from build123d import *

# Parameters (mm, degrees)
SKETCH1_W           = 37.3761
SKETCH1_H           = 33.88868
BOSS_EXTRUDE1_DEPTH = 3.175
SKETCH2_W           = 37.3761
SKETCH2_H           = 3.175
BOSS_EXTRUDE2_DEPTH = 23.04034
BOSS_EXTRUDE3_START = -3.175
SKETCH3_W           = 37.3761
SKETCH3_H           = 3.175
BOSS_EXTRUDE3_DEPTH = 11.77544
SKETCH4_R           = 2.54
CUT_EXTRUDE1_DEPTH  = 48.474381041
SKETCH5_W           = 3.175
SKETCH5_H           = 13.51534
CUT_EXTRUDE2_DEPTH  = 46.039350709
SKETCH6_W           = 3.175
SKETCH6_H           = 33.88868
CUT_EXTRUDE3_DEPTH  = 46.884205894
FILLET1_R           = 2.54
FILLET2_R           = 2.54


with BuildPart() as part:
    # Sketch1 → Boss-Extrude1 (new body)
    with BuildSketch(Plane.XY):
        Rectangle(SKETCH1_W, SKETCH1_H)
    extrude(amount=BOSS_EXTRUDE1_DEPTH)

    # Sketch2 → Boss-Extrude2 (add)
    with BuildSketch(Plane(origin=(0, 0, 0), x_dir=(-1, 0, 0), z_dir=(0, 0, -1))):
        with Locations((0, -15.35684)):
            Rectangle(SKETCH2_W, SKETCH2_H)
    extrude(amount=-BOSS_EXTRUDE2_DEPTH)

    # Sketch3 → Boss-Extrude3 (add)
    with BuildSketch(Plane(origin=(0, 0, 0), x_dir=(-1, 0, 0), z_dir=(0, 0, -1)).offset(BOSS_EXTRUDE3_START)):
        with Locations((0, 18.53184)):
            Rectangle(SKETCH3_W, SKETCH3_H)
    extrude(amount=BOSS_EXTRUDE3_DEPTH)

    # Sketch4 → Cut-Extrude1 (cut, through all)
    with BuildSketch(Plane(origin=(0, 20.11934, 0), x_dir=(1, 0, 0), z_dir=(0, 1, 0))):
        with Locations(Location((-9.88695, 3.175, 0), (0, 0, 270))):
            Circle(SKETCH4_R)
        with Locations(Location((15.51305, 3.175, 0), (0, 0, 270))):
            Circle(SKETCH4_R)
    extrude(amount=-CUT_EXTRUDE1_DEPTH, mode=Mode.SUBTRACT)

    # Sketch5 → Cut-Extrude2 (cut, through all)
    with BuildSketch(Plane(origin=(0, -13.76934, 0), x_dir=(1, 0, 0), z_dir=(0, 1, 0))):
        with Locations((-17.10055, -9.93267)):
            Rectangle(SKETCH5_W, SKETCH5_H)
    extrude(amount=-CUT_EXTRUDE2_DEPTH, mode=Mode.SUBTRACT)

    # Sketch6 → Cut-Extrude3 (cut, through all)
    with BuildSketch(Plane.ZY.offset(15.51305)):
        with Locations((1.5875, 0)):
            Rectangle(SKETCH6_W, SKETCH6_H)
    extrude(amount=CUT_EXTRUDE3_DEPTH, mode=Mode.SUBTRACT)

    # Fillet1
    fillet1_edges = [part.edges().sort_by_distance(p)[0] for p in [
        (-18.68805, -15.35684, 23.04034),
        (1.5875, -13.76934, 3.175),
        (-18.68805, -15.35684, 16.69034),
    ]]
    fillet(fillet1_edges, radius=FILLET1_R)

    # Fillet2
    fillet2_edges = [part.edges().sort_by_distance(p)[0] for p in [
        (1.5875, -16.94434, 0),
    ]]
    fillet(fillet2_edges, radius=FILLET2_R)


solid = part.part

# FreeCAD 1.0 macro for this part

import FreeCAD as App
import Part
import Sketcher
Q = App.Units.Quantity


def edges_at(feature, points):
    """Names of the edges that pass closest to the given points."""
    edges = feature.Shape.Edges
    near = lambda p: min(range(len(edges)), key=lambda i: edges[i].distToShape(Part.Vertex(*p))[0])
    return sorted({f"Edge{near(p) + 1}" for p in points})

doc = App.newDocument("Part")
params = doc.addObject("Spreadsheet::Sheet", "Params")
for row, (alias, value) in enumerate([
    ("pad1_length", "0.125 in"),
    ("sketch2_height", "0.125 in"),
    ("pad2_length", "0.9071 in"),
    ("sketch3_height", "0.125 in"),
    ("pad3_length", "0.4636 in"),
    ("sketch4_diameter", "0.2 in"),
    ("sketch5_width", "0.125 in"),
    ("sketch6_height", "0.125 in"),
    ("fillet_radius", "0.1 in"),
    ("fillet2_radius", "0.1 in"),
], start=1):
    params.set(f"A{row}", alias)
    params.set(f"B{row}", "=" + value)
    params.setAlias(f"B{row}", alias)

body = doc.addObject("PartDesign::Body", "Body")

# Sketch on XY plane
sketch1 = doc.addObject("Sketcher::SketchObject", "Sketch")
body.addObject(sketch1)
sketch1.AttachmentSupport = (doc.XY_Plane, [""])
sketch1.MapMode = "FlatFace"
sketch1.addGeometry([
    Part.LineSegment(App.Vector(-19, 17, 0), App.Vector(-19, -17, 0)),
    Part.LineSegment(App.Vector(-19, -17, 0), App.Vector(19, -17, 0)),
    Part.LineSegment(App.Vector(19, -17, 0), App.Vector(19, 17, 0)),
    Part.LineSegment(App.Vector(19, 17, 0), App.Vector(-19, 17, 0)),
], False)
sketch1.addConstraint([
    Sketcher.Constraint("Coincident", 0, 2, 1, 1),
    Sketcher.Constraint("Coincident", 1, 2, 2, 1),
    Sketcher.Constraint("Coincident", 2, 2, 3, 1),
    Sketcher.Constraint("Coincident", 3, 2, 0, 1),
    Sketcher.Constraint("Vertical", 0),
    Sketcher.Constraint("Horizontal", 1),
    Sketcher.Constraint("Vertical", 2),
    Sketcher.Constraint("Horizontal", 3),
    Sketcher.Constraint("Symmetric", 0, 2, 2, 2, -1, 1),
    Sketcher.Constraint("DistanceX", 1, 1, 1, 2, Q("1.4715 in")),
    Sketcher.Constraint("DistanceY", 0, 2, 0, 1, Q("1.3342 in")),
])
pad1 = doc.addObject("PartDesign::Pad", "Pad")
body.addObject(pad1)
pad1.Profile = sketch1
pad1.setExpression("Length", "Params.pad1_length")

# Sketch on XY plane
sketch2 = doc.addObject("Sketcher::SketchObject", "Sketch001")
body.addObject(sketch2)
sketch2.AttachmentSupport = (doc.XY_Plane, [""])
sketch2.MapMode = "FlatFace"
sketch2.addGeometry([
    Part.LineSegment(App.Vector(18.7, -13.8, 0), App.Vector(18.7, -16.9, 0)),
    Part.LineSegment(App.Vector(18.7, -16.9, 0), App.Vector(-18.7, -16.9, 0)),
    Part.LineSegment(App.Vector(-18.7, -16.9, 0), App.Vector(-18.7, -13.8, 0)),
    Part.LineSegment(App.Vector(-18.7, -13.8, 0), App.Vector(18.7, -13.8, 0)),
], False)
sketch2.addConstraint([
    Sketcher.Constraint("Coincident", 0, 2, 1, 1),
    Sketcher.Constraint("Coincident", 1, 2, 2, 1),
    Sketcher.Constraint("Coincident", 2, 2, 3, 1),
    Sketcher.Constraint("Coincident", 3, 2, 0, 1),
    Sketcher.Constraint("Vertical", 0),
    Sketcher.Constraint("Horizontal", 1),
    Sketcher.Constraint("Vertical", 2),
    Sketcher.Constraint("Horizontal", 3),
    Sketcher.Constraint("DistanceY", 0, 2, 0, 1, Q("0.125 in")),
    Sketcher.Constraint("DistanceX", 1, 2, 1, 1, Q("1.4715 in")),
    Sketcher.Constraint("DistanceY", 0, 2, -1, 1, Q("0.6671 in")),
    Sketcher.Constraint("DistanceX", -1, 1, 0, 2, Q("18.68805 mm")),
])
sketch2.setExpression("Constraints[8]", "Params.sketch2_height")
pad2 = doc.addObject("PartDesign::Pad", "Pad001")
body.addObject(pad2)
pad2.Profile = sketch2
pad2.setExpression("Length", "Params.pad2_length")

# Sketch on XY plane
sketch3 = doc.addObject("Sketcher::SketchObject", "Sketch002")
body.addObject(sketch3)
sketch3.AttachmentSupport = (doc.XY_Plane, [""])
sketch3.MapMode = "FlatFace"
sketch3.AttachmentOffset = App.Placement(App.Vector(0, 0, 0.125 * 25.4), App.Rotation())
sketch3.addGeometry([
    Part.LineSegment(App.Vector(18.7, 20.1, 0), App.Vector(18.7, 16.9, 0)),
    Part.LineSegment(App.Vector(18.7, 16.9, 0), App.Vector(-18.7, 16.9, 0)),
    Part.LineSegment(App.Vector(-18.7, 16.9, 0), App.Vector(-18.7, 20.1, 0)),
    Part.LineSegment(App.Vector(-18.7, 20.1, 0), App.Vector(18.7, 20.1, 0)),
], False)
sketch3.addConstraint([
    Sketcher.Constraint("Coincident", 0, 2, 1, 1),
    Sketcher.Constraint("Coincident", 1, 2, 2, 1),
    Sketcher.Constraint("Coincident", 2, 2, 3, 1),
    Sketcher.Constraint("Coincident", 3, 2, 0, 1),
    Sketcher.Constraint("Vertical", 0),
    Sketcher.Constraint("Horizontal", 1),
    Sketcher.Constraint("Vertical", 2),
    Sketcher.Constraint("Horizontal", 3),
    Sketcher.Constraint("DistanceY", 0, 2, 0, 1, Q("0.125 in")),
    Sketcher.Constraint("DistanceX", 1, 2, 1, 1, Q("1.4715 in")),
    Sketcher.Constraint("DistanceY", -1, 1, 0, 2, Q("0.6671 in")),
    Sketcher.Constraint("DistanceX", -1, 1, 0, 2, Q("18.68805 mm")),
])
sketch3.setExpression("Constraints[8]", "Params.sketch3_height")
pad3 = doc.addObject("PartDesign::Pad", "Pad002")
body.addObject(pad3)
pad3.Profile = sketch3
pad3.setExpression("Length", "Params.pad3_length")
pad3.Reversed = True

# Sketch on XZ plane
sketch4 = doc.addObject("Sketcher::SketchObject", "Sketch003")
body.addObject(sketch4)
sketch4.AttachmentSupport = (doc.XZ_Plane, [""])
sketch4.MapMode = "FlatFace"
sketch4.AttachmentOffset = App.Placement(App.Vector(0, 0, -0.7921 * 25.4), App.Rotation())
sketch4.addGeometry([
    Part.Circle(App.Vector(-9.9, -3.2, 0), App.Vector(0, 0, 1), 2.5),
    Part.Circle(App.Vector(15.5, -3.2, 0), App.Vector(0, 0, 1), 2.5),
], False)
sketch4.addConstraint([
    Sketcher.Constraint("Equal", 0, 1),
    Sketcher.Constraint("Horizontal", 0, 3, 1, 3),
    Sketcher.Constraint("Diameter", 0, Q("0.2 in")),
    Sketcher.Constraint("DistanceX", 0, 3, 1, 3, Q("1 in")),
    Sketcher.Constraint("DistanceY", 0, 3, -1, 1, Q("0.125 in")),
    Sketcher.Constraint("DistanceX", 0, 3, -1, 1, Q("9.88695 mm")),
])
sketch4.setExpression("Constraints[2]", "Params.sketch4_diameter")
pocket1 = doc.addObject("PartDesign::Pocket", "Pocket")
body.addObject(pocket1)
pocket1.Profile = sketch4
pocket1.Type = "ThroughAll"
pocket1.Reversed = True

# Sketch on XZ plane
sketch5 = doc.addObject("Sketcher::SketchObject", "Sketch004")
body.addObject(sketch5)
sketch5.AttachmentSupport = (doc.XZ_Plane, [""])
sketch5.MapMode = "FlatFace"
sketch5.AttachmentOffset = App.Placement(App.Vector(0, 0, 0.5421 * 25.4), App.Rotation())
sketch5.addGeometry([
    Part.LineSegment(App.Vector(-18.7, 3.2, 0), App.Vector(-18.7, 16.7, 0)),
    Part.LineSegment(App.Vector(-18.7, 16.7, 0), App.Vector(-15.5, 16.7, 0)),
    Part.LineSegment(App.Vector(-15.5, 16.7, 0), App.Vector(-15.5, 3.2, 0)),
    Part.LineSegment(App.Vector(-15.5, 3.2, 0), App.Vector(-18.7, 3.2, 0)),
], False)
sketch5.addConstraint([
    Sketcher.Constraint("Coincident", 0, 2, 1, 1),
    Sketcher.Constraint("Coincident", 1, 2, 2, 1),
    Sketcher.Constraint("Coincident", 2, 2, 3, 1),
    Sketcher.Constraint("Coincident", 3, 2, 0, 1),
    Sketcher.Constraint("Vertical", 0),
    Sketcher.Constraint("Horizontal", 1),
    Sketcher.Constraint("Vertical", 2),
    Sketcher.Constraint("Horizontal", 3),
    Sketcher.Constraint("DistanceX", 1, 1, 1, 2, Q("0.125 in")),
    Sketcher.Constraint("DistanceY", 0, 1, 0, 2, Q("0.5321 in")),
    Sketcher.Constraint("DistanceY", -1, 1, 2, 2, Q("0.125 in")),
    Sketcher.Constraint("DistanceX", 0, 2, -1, 1, Q("18.68805 mm")),
])
sketch5.setExpression("Constraints[8]", "Params.sketch5_width")
pocket2 = doc.addObject("PartDesign::Pocket", "Pocket001")
body.addObject(pocket2)
pocket2.Profile = sketch5
pocket2.Type = "ThroughAll"
pocket2.Reversed = True

# Sketch on YZ plane
sketch6 = doc.addObject("Sketcher::SketchObject", "Sketch005")
body.addObject(sketch6)
sketch6.AttachmentSupport = (doc.YZ_Plane, [""])
sketch6.MapMode = "FlatFace"
sketch6.AttachmentOffset = App.Placement(App.Vector(0, 0, -15.51305), App.Rotation())
sketch6.addGeometry([
    Part.LineSegment(App.Vector(16.9, 0, 0), App.Vector(-16.9, 0, 0)),
    Part.LineSegment(App.Vector(-16.9, 0, 0), App.Vector(-16.9, 3.2, 0)),
    Part.LineSegment(App.Vector(-16.9, 3.2, 0), App.Vector(16.9, 3.2, 0)),
    Part.LineSegment(App.Vector(16.9, 3.2, 0), App.Vector(16.9, 0, 0)),
], False)
sketch6.addConstraint([
    Sketcher.Constraint("Coincident", 0, 2, 1, 1),
    Sketcher.Constraint("Coincident", 1, 2, 2, 1),
    Sketcher.Constraint("Coincident", 2, 2, 3, 1),
    Sketcher.Constraint("Coincident", 3, 2, 0, 1),
    Sketcher.Constraint("Horizontal", 0),
    Sketcher.Constraint("Vertical", 1),
    Sketcher.Constraint("Horizontal", 2),
    Sketcher.Constraint("Vertical", 3),
    Sketcher.Constraint("Symmetric", 0, 2, 3, 2, -1, 1),
    Sketcher.Constraint("DistanceY", 1, 1, 1, 2, Q("0.125 in")),
    Sketcher.Constraint("DistanceX", 0, 2, 0, 1, Q("1.3342 in")),
])
sketch6.setExpression("Constraints[9]", "Params.sketch6_height")
pocket3 = doc.addObject("PartDesign::Pocket", "Pocket002")
body.addObject(pocket3)
pocket3.Profile = sketch6
pocket3.Type = "ThroughAll"
doc.recompute()

fillet = doc.addObject("PartDesign::Fillet", "Fillet")
body.addObject(fillet)
fillet.Base = (pocket3, edges_at(pocket3, [(-18.688, -15.357, 23.04), (1.587, -13.769, 3.175), (-18.688, -15.357, 16.69)]))
fillet.setExpression("Radius", "Params.fillet_radius")
doc.recompute()

fillet2 = doc.addObject("PartDesign::Fillet", "Fillet001")
body.addObject(fillet2)
fillet2.Base = (fillet, edges_at(fillet, [(1.587, -16.944, 0)]))
fillet2.setExpression("Radius", "Params.fillet2_radius")

doc.recompute()
